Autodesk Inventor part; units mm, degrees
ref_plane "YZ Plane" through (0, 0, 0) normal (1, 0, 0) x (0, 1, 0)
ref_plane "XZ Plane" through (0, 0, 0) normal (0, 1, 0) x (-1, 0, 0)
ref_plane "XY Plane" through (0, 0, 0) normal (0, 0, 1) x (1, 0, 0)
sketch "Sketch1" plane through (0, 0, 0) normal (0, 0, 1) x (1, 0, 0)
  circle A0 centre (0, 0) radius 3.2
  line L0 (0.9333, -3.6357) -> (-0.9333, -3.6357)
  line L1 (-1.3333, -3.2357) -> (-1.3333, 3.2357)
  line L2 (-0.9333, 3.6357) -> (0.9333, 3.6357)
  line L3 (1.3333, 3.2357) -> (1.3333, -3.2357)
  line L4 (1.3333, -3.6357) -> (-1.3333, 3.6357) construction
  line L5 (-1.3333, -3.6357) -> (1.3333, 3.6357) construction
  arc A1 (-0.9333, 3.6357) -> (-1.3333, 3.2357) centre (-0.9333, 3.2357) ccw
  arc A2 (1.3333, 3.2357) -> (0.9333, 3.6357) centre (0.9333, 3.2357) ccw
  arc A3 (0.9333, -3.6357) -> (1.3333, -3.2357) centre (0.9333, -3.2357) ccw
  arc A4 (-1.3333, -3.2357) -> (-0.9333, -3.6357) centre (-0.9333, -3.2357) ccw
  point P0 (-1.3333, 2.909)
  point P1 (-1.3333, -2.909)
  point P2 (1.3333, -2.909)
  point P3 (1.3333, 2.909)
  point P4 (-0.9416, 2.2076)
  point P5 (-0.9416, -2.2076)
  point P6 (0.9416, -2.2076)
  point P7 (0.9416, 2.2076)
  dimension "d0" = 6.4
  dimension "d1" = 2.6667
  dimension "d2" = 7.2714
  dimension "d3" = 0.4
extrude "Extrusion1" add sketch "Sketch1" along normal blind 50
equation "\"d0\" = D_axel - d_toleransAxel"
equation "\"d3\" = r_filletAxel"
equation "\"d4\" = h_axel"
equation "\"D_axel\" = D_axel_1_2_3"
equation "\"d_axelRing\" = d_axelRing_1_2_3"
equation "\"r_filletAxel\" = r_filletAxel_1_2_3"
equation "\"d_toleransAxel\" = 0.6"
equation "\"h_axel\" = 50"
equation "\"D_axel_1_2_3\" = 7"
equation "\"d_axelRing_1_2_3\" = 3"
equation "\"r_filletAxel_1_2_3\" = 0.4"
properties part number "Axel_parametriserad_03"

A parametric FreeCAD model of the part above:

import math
import FreeCAD as App
import Part
import Sketcher

V = App.Vector

doc = App.newDocument("Part")
body = doc.addObject("PartDesign::Body", "Body")

# Sketch on XY plane
sketch1 = body.newObject("Sketcher::SketchObject", "Sketch")
sketch1.AttachmentSupport = (doc.getObject("XY_Plane"), [""])
sketch1.MapMode = "FlatFace"
sketch1.addGeometry(Part.ArcOfCircle(Part.Circle(V(0, 0, 0), V(0, 0, 1), 3.2), math.radians(-65.376338), math.radians(65.376338)), False)
sketch1.addGeometry(Part.LineSegment(V(1.3333, 2.909005, 0), V(1.3333, 3.2357, 0)), False)
sketch1.addGeometry(Part.ArcOfCircle(Part.Circle(V(0.9333, 3.2357, 0), V(0, 0, 1), 0.4), math.radians(0), math.radians(90)), False)
sketch1.addGeometry(Part.LineSegment(V(0.9333, 3.6357, 0), V(-0.9333, 3.6357, 0)), False)
sketch1.addGeometry(Part.ArcOfCircle(Part.Circle(V(-0.9333, 3.2357, 0), V(0, 0, 1), 0.4), math.radians(90), math.radians(180)), False)
sketch1.addGeometry(Part.LineSegment(V(-1.3333, 3.2357, 0), V(-1.3333, 2.909005, 0)), False)
sketch1.addGeometry(Part.ArcOfCircle(Part.Circle(V(0, 0, 0), V(0, 0, 1), 3.2), math.radians(114.623662), math.radians(245.376338)), False)
sketch1.addGeometry(Part.LineSegment(V(-1.3333, -2.909005, 0), V(-1.3333, -3.2357, 0)), False)
sketch1.addGeometry(Part.ArcOfCircle(Part.Circle(V(-0.9333, -3.2357, 0), V(0, 0, 1), 0.4), math.radians(180), math.radians(270)), False)
sketch1.addGeometry(Part.LineSegment(V(-0.9333, -3.6357, 0), V(0.9333, -3.6357, 0)), False)
sketch1.addGeometry(Part.ArcOfCircle(Part.Circle(V(0.9333, -3.2357, 0), V(0, 0, 1), 0.4), math.radians(-90), math.radians(0)), False)
sketch1.addGeometry(Part.LineSegment(V(1.3333, -3.2357, 0), V(1.3333, -2.909005, 0)), False)
sketch1.addConstraint(Sketcher.Constraint("Coincident", 0, 2, 1, 1))
sketch1.addConstraint(Sketcher.Constraint("Tangent", 1, 2, 2, 1))
sketch1.addConstraint(Sketcher.Constraint("Tangent", 2, 2, 3, 1))
sketch1.addConstraint(Sketcher.Constraint("Tangent", 3, 2, 4, 1))
sketch1.addConstraint(Sketcher.Constraint("Tangent", 4, 2, 5, 1))
sketch1.addConstraint(Sketcher.Constraint("Coincident", 5, 2, 6, 1))
sketch1.addConstraint(Sketcher.Constraint("Coincident", 6, 2, 7, 1))
sketch1.addConstraint(Sketcher.Constraint("Tangent", 7, 2, 8, 1))
sketch1.addConstraint(Sketcher.Constraint("Tangent", 8, 2, 9, 1))
sketch1.addConstraint(Sketcher.Constraint("Tangent", 9, 2, 10, 1))
sketch1.addConstraint(Sketcher.Constraint("Tangent", 10, 2, 11, 1))
sketch1.addConstraint(Sketcher.Constraint("Coincident", 11, 2, 0, 1))
sketch1.addConstraint(Sketcher.Constraint("Vertical", 1))
sketch1.addConstraint(Sketcher.Constraint("Horizontal", 3))
sketch1.addConstraint(Sketcher.Constraint("Vertical", 5))
sketch1.addConstraint(Sketcher.Constraint("Vertical", 7))
sketch1.addConstraint(Sketcher.Constraint("Horizontal", 9))
sketch1.addConstraint(Sketcher.Constraint("Vertical", 11))
sketch1.addConstraint(Sketcher.Constraint("Coincident", 0, 3, -1, 1))
sketch1.addConstraint(Sketcher.Constraint("Coincident", 6, 3, -1, 1))
sketch1.addConstraint(Sketcher.Constraint("Equal", 2, 4))
sketch1.addConstraint(Sketcher.Constraint("Equal", 0, 6))
sketch1.addConstraint(Sketcher.Constraint("Equal", 4, 8))
sketch1.addConstraint(Sketcher.Constraint("Equal", 8, 10))
sketch1.addConstraint(Sketcher.Constraint("Symmetric", 2, 3, 8, 3, -1, 1))
sketch1.addConstraint(Sketcher.Constraint("Horizontal", 0, 2, 5, 2))
sketch1.addConstraint(Sketcher.Constraint("Horizontal", 6, 2, 11, 2))
sketch1.addConstraint(Sketcher.Constraint("Radius", 0, 3.2))
sketch1.addConstraint(Sketcher.Constraint("Radius", 2, 0.4))
sketch1.addConstraint(Sketcher.Constraint("DistanceX", 4, 2, 1, 2, 2.6666))
sketch1.addConstraint(Sketcher.Constraint("DistanceY", 1, 1, 1, 2, 0.3267))
pad1 = body.newObject("PartDesign::Pad", "Pad")
pad1.Profile = sketch1
pad1.Length = 50

doc.recompute()
